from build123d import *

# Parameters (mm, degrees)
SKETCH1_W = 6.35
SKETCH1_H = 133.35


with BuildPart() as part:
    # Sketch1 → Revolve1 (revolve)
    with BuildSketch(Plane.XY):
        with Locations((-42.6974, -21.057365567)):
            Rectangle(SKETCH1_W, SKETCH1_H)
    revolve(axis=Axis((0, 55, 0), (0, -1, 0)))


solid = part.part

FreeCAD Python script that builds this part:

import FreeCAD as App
import Part
import Sketcher
Q = App.Units.Quantity


def add_polygon(sketch, points):
    """Adds a closed chain of lines whose ends are joined by coincident constraints."""
    first, n = sketch.GeometryCount, len(points)
    for a, b in zip(points, points[1:] + points[:1]):
        sketch.addGeometry(Part.LineSegment(App.Vector(*a, 0), App.Vector(*b, 0)), False)
    for i in range(n):
        sketch.addConstraint(Sketcher.Constraint("Coincident", first + i, 2, first + (i + 1) % n, 1))

doc = App.newDocument("Part")
params = doc.addObject("Spreadsheet::Sheet", "Params")
for row, (alias, value) in enumerate([
    ("sketch1_width", "0.25 in"),
    ("sketch1_height", "5.25 in"),
    ("revolution_angle", "360 deg"),
], start=1):
    params.set(f"A{row}", alias)
    params.set(f"B{row}", "=" + value)
    params.setAlias(f"B{row}", alias)

body = doc.addObject("PartDesign::Body", "Body")

# Sketch on XY plane
sketch1 = body.newObject("Sketcher::SketchObject", "Sketch")
sketch1.AttachmentSupport = (doc.getObject("XY_Plane"), [""])
sketch1.MapMode = "FlatFace"
add_polygon(sketch1, [(-45.8724, 45.617634), (-45.8724, -87.732366), (-39.5224, -87.732366), (-39.5224, 45.617634)])  # lines 0-3
sketch1.addConstraint([
    Sketcher.Constraint("Vertical", 0),
    Sketcher.Constraint("Horizontal", 1),
    Sketcher.Constraint("Vertical", 2),
    Sketcher.Constraint("Horizontal", 3),
    Sketcher.Constraint("DistanceX", 1, 1, 1, 2, Q("0.25 in")),
    Sketcher.Constraint("DistanceY", 0, 2, 0, 1, Q("5.25 in")),
    Sketcher.Constraint("DistanceX", 0, 2, -1, 1, Q("1.806 in")),
    Sketcher.Constraint("DistanceY", 0, 2, -1, 1, Q("87.732366 mm")),
])
sketch1.setExpression("Constraints[8]", "Params.sketch1_width")
sketch1.setExpression("Constraints[9]", "Params.sketch1_height")
revolution = body.newObject("PartDesign::Revolution", "Revolution")
revolution.Profile = sketch1
revolution.ReferenceAxis = (sketch1, ["V_Axis"])
revolution.setExpression("Angle", "Params.revolution_angle")

doc.recompute()
